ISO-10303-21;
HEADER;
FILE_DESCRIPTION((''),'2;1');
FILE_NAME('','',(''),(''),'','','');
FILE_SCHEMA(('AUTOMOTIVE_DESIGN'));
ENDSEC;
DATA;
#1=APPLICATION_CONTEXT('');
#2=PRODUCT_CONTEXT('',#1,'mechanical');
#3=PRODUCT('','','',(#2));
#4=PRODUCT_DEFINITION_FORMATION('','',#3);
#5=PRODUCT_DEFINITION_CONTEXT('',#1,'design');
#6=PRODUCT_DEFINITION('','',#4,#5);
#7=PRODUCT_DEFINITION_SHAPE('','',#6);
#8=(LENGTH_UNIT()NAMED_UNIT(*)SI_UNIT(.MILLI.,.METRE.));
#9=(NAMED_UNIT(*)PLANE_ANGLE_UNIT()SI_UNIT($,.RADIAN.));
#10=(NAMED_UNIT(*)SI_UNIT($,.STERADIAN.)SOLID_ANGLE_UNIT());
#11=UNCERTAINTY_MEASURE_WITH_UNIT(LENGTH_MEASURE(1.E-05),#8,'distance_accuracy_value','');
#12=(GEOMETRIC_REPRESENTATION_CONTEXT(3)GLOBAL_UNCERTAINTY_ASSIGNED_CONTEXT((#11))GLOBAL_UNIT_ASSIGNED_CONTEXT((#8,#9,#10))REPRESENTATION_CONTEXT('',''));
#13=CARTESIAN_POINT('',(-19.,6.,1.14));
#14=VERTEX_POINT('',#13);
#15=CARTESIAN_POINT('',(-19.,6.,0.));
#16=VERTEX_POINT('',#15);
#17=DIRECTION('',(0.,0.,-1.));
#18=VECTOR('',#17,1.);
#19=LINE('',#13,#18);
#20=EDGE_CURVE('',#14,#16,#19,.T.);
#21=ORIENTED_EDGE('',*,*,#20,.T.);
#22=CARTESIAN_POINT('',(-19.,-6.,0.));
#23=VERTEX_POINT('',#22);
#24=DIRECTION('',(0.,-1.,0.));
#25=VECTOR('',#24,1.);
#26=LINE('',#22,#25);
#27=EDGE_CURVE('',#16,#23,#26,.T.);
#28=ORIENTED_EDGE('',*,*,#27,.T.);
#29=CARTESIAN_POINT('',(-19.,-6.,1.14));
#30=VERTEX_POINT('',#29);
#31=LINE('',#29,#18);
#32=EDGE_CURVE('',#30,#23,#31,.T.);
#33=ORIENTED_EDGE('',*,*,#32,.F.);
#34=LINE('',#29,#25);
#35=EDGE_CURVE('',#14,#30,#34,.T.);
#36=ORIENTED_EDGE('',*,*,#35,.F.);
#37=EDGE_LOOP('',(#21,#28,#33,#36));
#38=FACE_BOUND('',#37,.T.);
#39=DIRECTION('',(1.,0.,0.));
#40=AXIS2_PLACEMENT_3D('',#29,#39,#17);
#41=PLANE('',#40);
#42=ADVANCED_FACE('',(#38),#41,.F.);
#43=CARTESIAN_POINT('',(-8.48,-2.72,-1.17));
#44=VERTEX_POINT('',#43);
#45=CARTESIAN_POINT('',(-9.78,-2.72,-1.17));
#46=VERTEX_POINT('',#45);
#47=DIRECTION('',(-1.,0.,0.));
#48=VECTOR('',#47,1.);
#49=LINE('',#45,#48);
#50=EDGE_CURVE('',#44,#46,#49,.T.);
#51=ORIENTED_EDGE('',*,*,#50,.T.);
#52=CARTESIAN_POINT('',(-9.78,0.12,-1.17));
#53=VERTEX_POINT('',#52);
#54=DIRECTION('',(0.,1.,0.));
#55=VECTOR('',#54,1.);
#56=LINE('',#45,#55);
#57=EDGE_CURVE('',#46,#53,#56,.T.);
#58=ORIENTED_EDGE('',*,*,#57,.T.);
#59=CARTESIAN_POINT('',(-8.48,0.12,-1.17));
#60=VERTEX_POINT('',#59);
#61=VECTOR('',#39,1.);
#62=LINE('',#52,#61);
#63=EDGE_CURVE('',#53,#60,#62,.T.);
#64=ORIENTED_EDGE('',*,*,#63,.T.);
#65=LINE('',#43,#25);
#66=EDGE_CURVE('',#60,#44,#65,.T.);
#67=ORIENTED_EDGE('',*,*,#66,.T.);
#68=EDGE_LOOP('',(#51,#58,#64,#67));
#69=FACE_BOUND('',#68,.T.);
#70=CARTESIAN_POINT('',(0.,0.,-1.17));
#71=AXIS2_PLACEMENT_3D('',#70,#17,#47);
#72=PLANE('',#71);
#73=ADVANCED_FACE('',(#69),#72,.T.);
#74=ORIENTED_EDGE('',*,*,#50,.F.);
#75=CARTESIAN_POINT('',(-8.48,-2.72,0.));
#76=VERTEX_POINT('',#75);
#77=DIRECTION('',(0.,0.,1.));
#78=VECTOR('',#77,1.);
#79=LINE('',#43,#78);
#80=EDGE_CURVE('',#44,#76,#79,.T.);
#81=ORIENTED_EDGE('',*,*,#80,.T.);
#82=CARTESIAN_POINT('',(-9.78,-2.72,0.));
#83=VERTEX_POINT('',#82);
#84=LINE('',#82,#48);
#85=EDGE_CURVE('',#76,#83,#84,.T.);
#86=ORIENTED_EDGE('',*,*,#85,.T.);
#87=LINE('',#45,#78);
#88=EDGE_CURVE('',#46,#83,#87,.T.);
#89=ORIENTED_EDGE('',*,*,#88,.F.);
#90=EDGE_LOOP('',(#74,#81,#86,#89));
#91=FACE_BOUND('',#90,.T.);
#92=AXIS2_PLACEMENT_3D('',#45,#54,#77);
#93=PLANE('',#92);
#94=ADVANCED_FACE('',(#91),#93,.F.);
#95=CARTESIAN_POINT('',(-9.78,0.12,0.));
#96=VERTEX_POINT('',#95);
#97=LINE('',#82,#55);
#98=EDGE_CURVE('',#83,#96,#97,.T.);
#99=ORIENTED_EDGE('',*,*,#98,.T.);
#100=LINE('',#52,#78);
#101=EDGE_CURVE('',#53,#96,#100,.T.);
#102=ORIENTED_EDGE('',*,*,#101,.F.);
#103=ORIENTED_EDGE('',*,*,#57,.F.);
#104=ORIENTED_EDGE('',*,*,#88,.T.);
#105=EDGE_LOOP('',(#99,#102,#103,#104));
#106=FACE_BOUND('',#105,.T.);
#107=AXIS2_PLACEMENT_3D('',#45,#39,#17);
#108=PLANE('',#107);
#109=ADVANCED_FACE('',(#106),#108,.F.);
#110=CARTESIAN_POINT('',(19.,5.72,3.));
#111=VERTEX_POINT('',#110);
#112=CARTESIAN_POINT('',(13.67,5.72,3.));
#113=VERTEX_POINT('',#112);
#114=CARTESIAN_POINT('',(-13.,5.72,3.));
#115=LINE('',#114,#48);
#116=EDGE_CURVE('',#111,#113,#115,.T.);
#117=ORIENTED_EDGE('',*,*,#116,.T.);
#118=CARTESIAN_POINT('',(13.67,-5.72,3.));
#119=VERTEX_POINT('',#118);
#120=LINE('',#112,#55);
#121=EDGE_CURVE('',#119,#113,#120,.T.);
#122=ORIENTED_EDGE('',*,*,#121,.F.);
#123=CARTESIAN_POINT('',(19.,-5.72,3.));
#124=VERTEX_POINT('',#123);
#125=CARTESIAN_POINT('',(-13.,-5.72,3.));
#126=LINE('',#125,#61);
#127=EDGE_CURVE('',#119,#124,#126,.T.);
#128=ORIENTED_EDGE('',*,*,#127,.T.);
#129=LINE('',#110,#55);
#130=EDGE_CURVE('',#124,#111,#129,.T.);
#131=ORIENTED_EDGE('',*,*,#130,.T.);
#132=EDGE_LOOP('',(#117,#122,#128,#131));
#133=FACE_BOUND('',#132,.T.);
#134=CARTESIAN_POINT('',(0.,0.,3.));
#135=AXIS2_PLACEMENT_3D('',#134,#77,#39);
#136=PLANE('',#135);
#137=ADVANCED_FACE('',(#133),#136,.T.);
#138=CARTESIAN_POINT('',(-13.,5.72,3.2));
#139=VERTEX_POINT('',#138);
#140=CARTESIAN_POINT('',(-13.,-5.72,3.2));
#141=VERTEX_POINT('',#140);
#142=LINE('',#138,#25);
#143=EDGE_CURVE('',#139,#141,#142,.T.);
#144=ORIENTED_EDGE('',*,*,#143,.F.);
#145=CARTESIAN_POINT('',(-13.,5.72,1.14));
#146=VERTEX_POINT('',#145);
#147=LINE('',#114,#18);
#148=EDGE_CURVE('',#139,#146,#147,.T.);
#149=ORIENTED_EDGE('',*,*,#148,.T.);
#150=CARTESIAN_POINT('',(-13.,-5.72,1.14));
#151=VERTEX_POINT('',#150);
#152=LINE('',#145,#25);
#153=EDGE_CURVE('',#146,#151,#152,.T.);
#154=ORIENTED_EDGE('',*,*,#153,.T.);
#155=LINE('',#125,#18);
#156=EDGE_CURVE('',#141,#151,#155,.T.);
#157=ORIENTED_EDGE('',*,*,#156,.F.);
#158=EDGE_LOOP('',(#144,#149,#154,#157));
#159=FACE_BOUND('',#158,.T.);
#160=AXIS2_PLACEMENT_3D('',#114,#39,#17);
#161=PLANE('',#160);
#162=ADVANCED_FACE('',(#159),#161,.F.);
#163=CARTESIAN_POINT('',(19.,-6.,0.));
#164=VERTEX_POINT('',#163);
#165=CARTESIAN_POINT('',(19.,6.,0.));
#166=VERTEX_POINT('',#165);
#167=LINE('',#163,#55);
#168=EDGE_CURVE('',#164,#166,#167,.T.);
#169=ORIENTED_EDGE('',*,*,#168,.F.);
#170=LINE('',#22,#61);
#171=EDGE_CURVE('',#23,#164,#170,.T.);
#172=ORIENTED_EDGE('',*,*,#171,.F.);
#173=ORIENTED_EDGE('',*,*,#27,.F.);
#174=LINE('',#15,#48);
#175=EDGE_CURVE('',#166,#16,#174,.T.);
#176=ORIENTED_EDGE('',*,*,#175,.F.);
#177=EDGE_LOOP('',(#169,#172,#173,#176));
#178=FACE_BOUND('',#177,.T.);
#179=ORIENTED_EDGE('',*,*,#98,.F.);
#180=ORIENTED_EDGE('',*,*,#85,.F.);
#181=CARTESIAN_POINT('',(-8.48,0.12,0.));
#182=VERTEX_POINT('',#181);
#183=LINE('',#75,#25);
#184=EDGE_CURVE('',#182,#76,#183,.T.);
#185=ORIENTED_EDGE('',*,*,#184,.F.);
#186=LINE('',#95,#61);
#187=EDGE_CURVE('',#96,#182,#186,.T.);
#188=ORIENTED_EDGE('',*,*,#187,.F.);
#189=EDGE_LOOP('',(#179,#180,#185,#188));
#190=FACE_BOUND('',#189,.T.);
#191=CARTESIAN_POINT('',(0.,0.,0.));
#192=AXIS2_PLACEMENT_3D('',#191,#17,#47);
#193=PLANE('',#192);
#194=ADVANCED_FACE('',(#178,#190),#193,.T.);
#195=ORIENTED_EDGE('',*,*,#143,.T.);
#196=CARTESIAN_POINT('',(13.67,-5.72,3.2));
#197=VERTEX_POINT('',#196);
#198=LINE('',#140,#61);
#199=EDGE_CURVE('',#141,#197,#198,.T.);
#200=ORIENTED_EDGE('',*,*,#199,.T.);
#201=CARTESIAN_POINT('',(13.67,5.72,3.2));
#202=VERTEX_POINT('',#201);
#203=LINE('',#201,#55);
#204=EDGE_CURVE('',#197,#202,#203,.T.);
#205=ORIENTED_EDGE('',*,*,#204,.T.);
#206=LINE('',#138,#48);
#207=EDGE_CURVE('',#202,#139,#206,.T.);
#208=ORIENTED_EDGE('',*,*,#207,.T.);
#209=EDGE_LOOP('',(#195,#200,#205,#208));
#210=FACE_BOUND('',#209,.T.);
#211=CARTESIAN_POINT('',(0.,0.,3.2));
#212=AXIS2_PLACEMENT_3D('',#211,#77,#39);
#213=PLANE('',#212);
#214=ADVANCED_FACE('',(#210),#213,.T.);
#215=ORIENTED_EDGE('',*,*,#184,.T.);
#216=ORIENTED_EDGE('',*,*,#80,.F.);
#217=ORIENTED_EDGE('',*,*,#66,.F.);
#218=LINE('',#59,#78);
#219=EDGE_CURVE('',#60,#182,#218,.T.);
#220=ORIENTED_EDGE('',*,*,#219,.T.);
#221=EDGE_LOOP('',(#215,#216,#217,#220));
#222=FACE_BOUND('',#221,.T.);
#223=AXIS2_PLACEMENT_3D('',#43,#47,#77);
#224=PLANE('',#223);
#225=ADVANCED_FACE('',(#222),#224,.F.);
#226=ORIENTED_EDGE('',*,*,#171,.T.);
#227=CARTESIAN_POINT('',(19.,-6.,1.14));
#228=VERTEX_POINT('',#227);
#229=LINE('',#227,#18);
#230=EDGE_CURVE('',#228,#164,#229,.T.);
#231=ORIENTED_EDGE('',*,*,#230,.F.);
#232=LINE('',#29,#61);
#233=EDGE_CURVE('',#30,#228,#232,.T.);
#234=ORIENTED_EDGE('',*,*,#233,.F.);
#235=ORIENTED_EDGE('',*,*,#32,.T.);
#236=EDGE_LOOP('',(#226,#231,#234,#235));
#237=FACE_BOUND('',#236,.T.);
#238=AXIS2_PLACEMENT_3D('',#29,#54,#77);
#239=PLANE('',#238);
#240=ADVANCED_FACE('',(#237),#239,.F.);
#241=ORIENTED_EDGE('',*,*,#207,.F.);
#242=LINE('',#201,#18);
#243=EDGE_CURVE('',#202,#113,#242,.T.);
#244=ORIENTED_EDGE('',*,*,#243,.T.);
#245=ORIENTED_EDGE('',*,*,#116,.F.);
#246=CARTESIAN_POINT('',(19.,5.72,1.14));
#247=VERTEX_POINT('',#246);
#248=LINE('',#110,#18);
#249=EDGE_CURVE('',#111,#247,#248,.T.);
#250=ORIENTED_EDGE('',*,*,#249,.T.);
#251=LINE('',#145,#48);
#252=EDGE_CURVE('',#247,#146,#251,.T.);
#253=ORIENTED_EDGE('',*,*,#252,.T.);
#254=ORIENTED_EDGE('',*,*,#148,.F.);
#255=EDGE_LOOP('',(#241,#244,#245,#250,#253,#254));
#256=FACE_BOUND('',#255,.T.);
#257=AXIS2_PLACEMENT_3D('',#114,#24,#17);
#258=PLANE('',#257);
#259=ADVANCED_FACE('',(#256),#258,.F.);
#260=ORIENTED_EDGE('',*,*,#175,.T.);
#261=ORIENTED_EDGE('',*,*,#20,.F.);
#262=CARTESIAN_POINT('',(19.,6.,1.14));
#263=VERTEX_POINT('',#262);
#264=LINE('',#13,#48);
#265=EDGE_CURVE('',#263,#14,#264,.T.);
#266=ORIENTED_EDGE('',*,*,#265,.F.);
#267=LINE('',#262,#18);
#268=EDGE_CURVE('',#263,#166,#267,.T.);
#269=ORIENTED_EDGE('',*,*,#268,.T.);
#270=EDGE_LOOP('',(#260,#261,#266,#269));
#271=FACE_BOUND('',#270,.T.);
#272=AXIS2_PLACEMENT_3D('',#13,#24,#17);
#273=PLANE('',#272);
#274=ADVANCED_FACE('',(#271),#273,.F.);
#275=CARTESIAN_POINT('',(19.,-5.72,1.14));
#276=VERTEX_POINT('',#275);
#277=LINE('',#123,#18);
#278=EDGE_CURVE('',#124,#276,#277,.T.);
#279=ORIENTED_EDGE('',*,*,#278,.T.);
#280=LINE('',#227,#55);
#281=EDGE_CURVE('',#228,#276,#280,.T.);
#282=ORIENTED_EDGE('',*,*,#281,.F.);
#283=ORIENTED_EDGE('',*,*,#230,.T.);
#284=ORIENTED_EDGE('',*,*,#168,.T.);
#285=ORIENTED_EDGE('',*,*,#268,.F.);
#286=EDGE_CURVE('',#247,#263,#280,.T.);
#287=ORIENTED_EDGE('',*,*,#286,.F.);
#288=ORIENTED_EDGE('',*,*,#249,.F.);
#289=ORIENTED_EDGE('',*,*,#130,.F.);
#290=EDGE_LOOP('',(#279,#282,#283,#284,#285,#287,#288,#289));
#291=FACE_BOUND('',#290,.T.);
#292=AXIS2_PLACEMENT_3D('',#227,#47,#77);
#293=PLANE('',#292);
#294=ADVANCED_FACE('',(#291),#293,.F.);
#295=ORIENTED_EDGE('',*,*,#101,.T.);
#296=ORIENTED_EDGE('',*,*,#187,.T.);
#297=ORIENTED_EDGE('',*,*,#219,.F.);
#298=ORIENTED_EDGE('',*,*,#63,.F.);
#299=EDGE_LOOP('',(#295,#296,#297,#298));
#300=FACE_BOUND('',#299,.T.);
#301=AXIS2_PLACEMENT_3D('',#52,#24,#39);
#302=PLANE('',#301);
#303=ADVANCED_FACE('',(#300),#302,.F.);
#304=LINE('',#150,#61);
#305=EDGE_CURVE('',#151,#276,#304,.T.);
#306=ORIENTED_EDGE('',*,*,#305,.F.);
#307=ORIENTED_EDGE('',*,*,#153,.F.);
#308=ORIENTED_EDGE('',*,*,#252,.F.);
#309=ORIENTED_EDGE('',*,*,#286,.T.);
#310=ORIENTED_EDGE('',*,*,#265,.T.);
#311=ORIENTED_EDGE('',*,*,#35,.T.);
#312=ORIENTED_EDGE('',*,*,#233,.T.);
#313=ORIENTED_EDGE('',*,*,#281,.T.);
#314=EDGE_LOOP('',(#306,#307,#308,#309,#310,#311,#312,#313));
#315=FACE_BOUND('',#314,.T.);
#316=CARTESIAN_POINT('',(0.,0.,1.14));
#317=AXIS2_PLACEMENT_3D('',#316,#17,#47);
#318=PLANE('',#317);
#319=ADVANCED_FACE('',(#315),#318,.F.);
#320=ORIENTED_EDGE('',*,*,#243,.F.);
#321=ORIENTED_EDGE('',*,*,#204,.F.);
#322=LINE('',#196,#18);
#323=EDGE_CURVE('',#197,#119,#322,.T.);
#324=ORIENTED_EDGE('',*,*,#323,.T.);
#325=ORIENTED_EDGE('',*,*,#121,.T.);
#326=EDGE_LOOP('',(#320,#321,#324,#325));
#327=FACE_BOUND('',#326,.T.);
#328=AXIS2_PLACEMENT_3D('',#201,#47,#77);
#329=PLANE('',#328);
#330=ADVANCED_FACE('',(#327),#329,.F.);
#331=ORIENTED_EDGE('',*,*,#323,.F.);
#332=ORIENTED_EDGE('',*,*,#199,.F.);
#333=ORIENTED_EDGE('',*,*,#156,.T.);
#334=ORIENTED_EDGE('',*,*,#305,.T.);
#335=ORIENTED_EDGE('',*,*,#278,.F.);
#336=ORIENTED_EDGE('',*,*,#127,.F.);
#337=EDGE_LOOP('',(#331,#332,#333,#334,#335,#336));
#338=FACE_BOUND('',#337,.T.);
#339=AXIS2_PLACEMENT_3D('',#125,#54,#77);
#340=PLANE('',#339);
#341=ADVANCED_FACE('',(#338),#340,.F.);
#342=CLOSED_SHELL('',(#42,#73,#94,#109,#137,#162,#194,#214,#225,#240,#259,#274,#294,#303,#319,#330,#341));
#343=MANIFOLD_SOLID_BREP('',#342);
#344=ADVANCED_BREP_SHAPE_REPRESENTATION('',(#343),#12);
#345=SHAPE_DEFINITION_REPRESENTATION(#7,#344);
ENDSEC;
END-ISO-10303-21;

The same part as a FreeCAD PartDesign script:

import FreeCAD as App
import Part
import Sketcher
from FreeCAD import Vector

doc = App.newDocument("Part")
body = doc.addObject("PartDesign::Body", "Body")

sketch1 = body.newObject("Sketcher::SketchObject", "Sketch")
sketch1.AttachmentSupport = (doc.getObject("XY_Plane"), [""])
sketch1.MapMode = "FlatFace"
sketch1.addGeometry([
    Part.LineSegment(Vector(-19, 6, 0), Vector(-19, -6, 0)),
    Part.LineSegment(Vector(-19, -6, 0), Vector(19, -6, 0)),
    Part.LineSegment(Vector(19, -6, 0), Vector(19, 6, 0)),
    Part.LineSegment(Vector(19, 6, 0), Vector(-19, 6, 0)),
], False)
sketch1.addConstraint([
    Sketcher.Constraint("Coincident", 0, 2, 1, 1),
    Sketcher.Constraint("Coincident", 1, 2, 2, 1),
    Sketcher.Constraint("Coincident", 2, 2, 3, 1),
    Sketcher.Constraint("Coincident", 3, 2, 0, 1),
    Sketcher.Constraint("Vertical", 0),
    Sketcher.Constraint("Horizontal", 1),
    Sketcher.Constraint("Vertical", 2),
    Sketcher.Constraint("Horizontal", 3),
    Sketcher.Constraint("Symmetric", 0, 2, 2, 2, -1, 1),
    Sketcher.Constraint("DistanceX", 1, 1, 1, 2, 38.0),
    Sketcher.Constraint("DistanceY", 0, 2, 0, 1, 12.0),
])
pad1 = body.newObject("PartDesign::Pad", "Pad")
pad1.Profile = sketch1
pad1.Length = 1.14

sketch2 = body.newObject("Sketcher::SketchObject", "Sketch001")
sketch2.AttachmentSupport = (doc.getObject("XY_Plane"), [""])
sketch2.MapMode = "FlatFace"
sketch2.addGeometry([
    Part.LineSegment(Vector(-8.48, 0.12, 0), Vector(-8.48, -2.72, 0)),
    Part.LineSegment(Vector(-8.48, -2.72, 0), Vector(-9.78, -2.72, 0)),
    Part.LineSegment(Vector(-9.78, -2.72, 0), Vector(-9.78, 0.12, 0)),
    Part.LineSegment(Vector(-9.78, 0.12, 0), Vector(-8.48, 0.12, 0)),
], False)
sketch2.addConstraint([
    Sketcher.Constraint("Coincident", 0, 2, 1, 1),
    Sketcher.Constraint("Coincident", 1, 2, 2, 1),
    Sketcher.Constraint("Coincident", 2, 2, 3, 1),
    Sketcher.Constraint("Coincident", 3, 2, 0, 1),
    Sketcher.Constraint("Vertical", 0),
    Sketcher.Constraint("Horizontal", 1),
    Sketcher.Constraint("Vertical", 2),
    Sketcher.Constraint("Horizontal", 3),
    Sketcher.Constraint("DistanceX", 1, 2, 1, 1, 1.3),
    Sketcher.Constraint("DistanceY", 0, 2, 0, 1, 2.84),
    Sketcher.Constraint("DistanceX", 0, 2, -1, 1, 8.48),
    Sketcher.Constraint("DistanceY", 0, 2, -1, 1, 2.72),
])
pad2 = body.newObject("PartDesign::Pad", "Pad001")
pad2.Profile = sketch2
pad2.Length = 1.17
pad2.Reversed = True

sketch3 = body.newObject("Sketcher::SketchObject", "Sketch002")
sketch3.AttachmentSupport = (doc.getObject("XY_Plane"), [""])
sketch3.MapMode = "FlatFace"
sketch3.AttachmentOffset = App.Placement(Vector(0, 0, 1.14), App.Rotation())
sketch3.addGeometry([
    Part.LineSegment(Vector(-13, 5.72, 0), Vector(-13, -5.72, 0)),
    Part.LineSegment(Vector(-13, -5.72, 0), Vector(19, -5.72, 0)),
    Part.LineSegment(Vector(19, -5.72, 0), Vector(19, 5.72, 0)),
    Part.LineSegment(Vector(19, 5.72, 0), Vector(-13, 5.72, 0)),
], False)
sketch3.addConstraint([
    Sketcher.Constraint("Coincident", 0, 2, 1, 1),
    Sketcher.Constraint("Coincident", 1, 2, 2, 1),
    Sketcher.Constraint("Coincident", 2, 2, 3, 1),
    Sketcher.Constraint("Coincident", 3, 2, 0, 1),
    Sketcher.Constraint("Vertical", 0),
    Sketcher.Constraint("Horizontal", 1),
    Sketcher.Constraint("Vertical", 2),
    Sketcher.Constraint("Horizontal", 3),
    Sketcher.Constraint("DistanceX", 1, 1, 1, 2, 32.0),
    Sketcher.Constraint("DistanceX", 0, 2, -1, 1, 13.0),
    Sketcher.Constraint("DistanceY", 0, 2, 0, 1, 11.44),
    Sketcher.Constraint("DistanceY", 0, 2, -1, 1, 5.72),
])
pad3 = body.newObject("PartDesign::Pad", "Pad002")
pad3.Profile = sketch3
pad3.Length = 1.86

sketch4 = body.newObject("Sketcher::SketchObject", "Sketch003")
sketch4.AttachmentSupport = (doc.getObject("XY_Plane"), [""])
sketch4.MapMode = "FlatFace"
sketch4.AttachmentOffset = App.Placement(Vector(0, 0, 3), App.Rotation())
sketch4.addGeometry([
    Part.LineSegment(Vector(-13, 5.72, 0), Vector(-13, -5.72, 0)),
    Part.LineSegment(Vector(-13, -5.72, 0), Vector(13.67, -5.72, 0)),
    Part.LineSegment(Vector(13.67, -5.72, 0), Vector(13.67, 5.72, 0)),
    Part.LineSegment(Vector(13.67, 5.72, 0), Vector(-13, 5.72, 0)),
], False)
sketch4.addConstraint([
    Sketcher.Constraint("Coincident", 0, 2, 1, 1),
    Sketcher.Constraint("Coincident", 1, 2, 2, 1),
    Sketcher.Constraint("Coincident", 2, 2, 3, 1),
    Sketcher.Constraint("Coincident", 3, 2, 0, 1),
    Sketcher.Constraint("Vertical", 0),
    Sketcher.Constraint("Horizontal", 1),
    Sketcher.Constraint("Vertical", 2),
    Sketcher.Constraint("Horizontal", 3),
    Sketcher.Constraint("DistanceX", 0, 2, -1, 1, 13.0),
    Sketcher.Constraint("DistanceX", 1, 1, 1, 2, 26.67),
    Sketcher.Constraint("DistanceY", 0, 2, 0, 1, 11.44),
    Sketcher.Constraint("DistanceY", 0, 2, -1, 1, 5.72),
])
pad4 = body.newObject("PartDesign::Pad", "Pad003")
pad4.Profile = sketch4
pad4.Length = 0.2

doc.recompute()
